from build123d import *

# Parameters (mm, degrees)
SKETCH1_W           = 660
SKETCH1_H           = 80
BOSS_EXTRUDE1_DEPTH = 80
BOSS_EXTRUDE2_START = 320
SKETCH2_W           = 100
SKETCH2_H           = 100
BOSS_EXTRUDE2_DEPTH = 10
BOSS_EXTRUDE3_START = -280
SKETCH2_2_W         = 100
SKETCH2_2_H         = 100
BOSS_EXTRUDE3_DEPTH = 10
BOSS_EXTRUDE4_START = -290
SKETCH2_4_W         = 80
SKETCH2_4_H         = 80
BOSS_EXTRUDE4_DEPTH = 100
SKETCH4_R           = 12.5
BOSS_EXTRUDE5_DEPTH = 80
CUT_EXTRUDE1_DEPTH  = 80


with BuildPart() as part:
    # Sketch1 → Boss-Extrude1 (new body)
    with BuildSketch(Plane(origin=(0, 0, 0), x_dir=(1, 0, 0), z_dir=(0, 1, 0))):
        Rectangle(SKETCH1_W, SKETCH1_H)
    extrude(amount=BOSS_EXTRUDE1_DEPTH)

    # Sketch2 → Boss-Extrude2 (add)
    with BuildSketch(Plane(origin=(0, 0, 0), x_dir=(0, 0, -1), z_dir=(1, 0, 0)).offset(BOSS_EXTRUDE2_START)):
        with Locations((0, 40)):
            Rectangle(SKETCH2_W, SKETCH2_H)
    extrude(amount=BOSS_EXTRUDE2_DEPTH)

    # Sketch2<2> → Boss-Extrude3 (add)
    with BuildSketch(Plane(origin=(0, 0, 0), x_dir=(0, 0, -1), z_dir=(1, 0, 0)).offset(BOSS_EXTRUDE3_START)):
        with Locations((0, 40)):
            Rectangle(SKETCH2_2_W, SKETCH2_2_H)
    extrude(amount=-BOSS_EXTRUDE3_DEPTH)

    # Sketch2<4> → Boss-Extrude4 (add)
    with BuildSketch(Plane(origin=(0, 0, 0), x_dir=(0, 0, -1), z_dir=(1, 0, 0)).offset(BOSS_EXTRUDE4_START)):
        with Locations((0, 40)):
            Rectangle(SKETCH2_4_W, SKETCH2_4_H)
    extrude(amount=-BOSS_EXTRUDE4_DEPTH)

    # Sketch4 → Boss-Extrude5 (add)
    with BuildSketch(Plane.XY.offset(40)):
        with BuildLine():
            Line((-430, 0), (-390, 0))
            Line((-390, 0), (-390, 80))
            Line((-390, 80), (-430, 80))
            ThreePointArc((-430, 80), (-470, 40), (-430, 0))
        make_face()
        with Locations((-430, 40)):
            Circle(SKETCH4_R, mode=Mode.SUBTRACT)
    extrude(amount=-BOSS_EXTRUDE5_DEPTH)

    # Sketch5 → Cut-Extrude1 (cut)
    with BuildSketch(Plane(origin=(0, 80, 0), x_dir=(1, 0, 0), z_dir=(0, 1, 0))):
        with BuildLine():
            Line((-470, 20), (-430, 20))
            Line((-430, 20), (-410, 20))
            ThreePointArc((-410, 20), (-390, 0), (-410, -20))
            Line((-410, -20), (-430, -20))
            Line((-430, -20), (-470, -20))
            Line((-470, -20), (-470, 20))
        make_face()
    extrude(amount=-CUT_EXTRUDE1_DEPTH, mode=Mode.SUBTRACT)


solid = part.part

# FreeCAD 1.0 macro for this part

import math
import FreeCAD as App
import Part
import Sketcher
Q = App.Units.Quantity


def add_polygon(sketch, points):
    """Adds a closed chain of lines whose ends are joined by coincident constraints."""
    first, n = sketch.GeometryCount, len(points)
    for a, b in zip(points, points[1:] + points[:1]):
        sketch.addGeometry(Part.LineSegment(App.Vector(*a, 0), App.Vector(*b, 0)), False)
    for i in range(n):
        sketch.addConstraint(Sketcher.Constraint("Coincident", first + i, 2, first + (i + 1) % n, 1))

doc = App.newDocument("Part")
body = doc.addObject("PartDesign::Body", "Body")

sketch1 = body.newObject("Sketcher::SketchObject", "Sketch")
sketch1.AttachmentSupport = (doc.getObject("XZ_Plane"), [""])
sketch1.MapMode = "FlatFace"
add_polygon(sketch1, [(-330, -40), (-330, 40), (330, 40), (330, -40)])
sketch1.addConstraint([
    Sketcher.Constraint("Vertical", 0),
    Sketcher.Constraint("Horizontal", 1),
    Sketcher.Constraint("Vertical", 2),
    Sketcher.Constraint("Horizontal", 3),
    Sketcher.Constraint("Symmetric", 0, 2, 2, 2, -1, 1),
    Sketcher.Constraint("DistanceX", 1, 1, 1, 2, Q("660 mm")),
    Sketcher.Constraint("DistanceY", 0, 1, 0, 2, Q("80 mm")),
])
pad1 = body.newObject("PartDesign::Pad", "Pad")
pad1.Profile = sketch1
pad1.Length = 80
pad1.Reversed = True

sketch2 = body.newObject("Sketcher::SketchObject", "Sketch001")
sketch2.AttachmentSupport = (doc.getObject("YZ_Plane"), [""])
sketch2.MapMode = "FlatFace"
sketch2.AttachmentOffset = App.Placement(App.Vector(0, 0, 320), App.Rotation())
add_polygon(sketch2, [(90, 50), (-10, 50), (-10, -50), (90, -50)])
sketch2.addConstraint([
    Sketcher.Constraint("Horizontal", 0),
    Sketcher.Constraint("Vertical", 1),
    Sketcher.Constraint("Horizontal", 2),
    Sketcher.Constraint("Vertical", 3),
    Sketcher.Constraint("Equal", 2, 1),
    Sketcher.Constraint("DistanceX", 0, 2, 0, 1, Q("100 mm")),
    Sketcher.Constraint("DistanceX", 0, 2, -1, 1, Q("10 mm")),
    Sketcher.Constraint("DistanceY", -1, 1, 0, 2, Q("50 mm")),
])
pad2 = body.newObject("PartDesign::Pad", "Pad001")
pad2.Profile = sketch2
pad2.Length = 10

sketch3 = body.newObject("Sketcher::SketchObject", "Sketch002")
sketch3.AttachmentSupport = (doc.getObject("YZ_Plane"), [""])
sketch3.MapMode = "FlatFace"
sketch3.AttachmentOffset = App.Placement(App.Vector(0, 0, -280), App.Rotation())
add_polygon(sketch3, [(90, 50), (-10, 50), (-10, -50), (90, -50)])
sketch3.addConstraint([
    Sketcher.Constraint("Horizontal", 0),
    Sketcher.Constraint("Vertical", 1),
    Sketcher.Constraint("Horizontal", 2),
    Sketcher.Constraint("Vertical", 3),
    Sketcher.Constraint("Equal", 2, 1),
    Sketcher.Constraint("DistanceX", 0, 2, 0, 1, Q("100 mm")),
    Sketcher.Constraint("DistanceX", 0, 2, -1, 1, Q("10 mm")),
    Sketcher.Constraint("DistanceY", -1, 1, 0, 2, Q("50 mm")),
])
pad3 = body.newObject("PartDesign::Pad", "Pad002")
pad3.Profile = sketch3
pad3.Length = 10
pad3.Reversed = True

sketch4 = body.newObject("Sketcher::SketchObject", "Sketch003")
sketch4.AttachmentSupport = (doc.getObject("YZ_Plane"), [""])
sketch4.MapMode = "FlatFace"
sketch4.AttachmentOffset = App.Placement(App.Vector(0, 0, -290), App.Rotation())
add_polygon(sketch4, [(80, 40), (0, 40), (0, -40), (80, -40)])
sketch4.addConstraint([
    Sketcher.Constraint("Horizontal", 0),
    Sketcher.Constraint("Vertical", 1),
    Sketcher.Constraint("Horizontal", 2),
    Sketcher.Constraint("Vertical", 3),
    Sketcher.Constraint("Symmetric", 0, 2, 1, 2, -1, 1),
    Sketcher.Constraint("Equal", 2, 1),
    Sketcher.Constraint("DistanceX", 0, 2, 0, 1, Q("80 mm")),
])
pad4 = body.newObject("PartDesign::Pad", "Pad003")
pad4.Profile = sketch4
pad4.Length = 100
pad4.Reversed = True

sketch5 = body.newObject("Sketcher::SketchObject", "Sketch004")
sketch5.AttachmentSupport = (doc.getObject("XY_Plane"), [""])
sketch5.MapMode = "FlatFace"
sketch5.AttachmentOffset = App.Placement(App.Vector(0, 0, 40), App.Rotation())
sketch5.addGeometry([
    Part.LineSegment(App.Vector(-430, 0, 0), App.Vector(-390, 0, 0)),
    Part.LineSegment(App.Vector(-390, 0, 0), App.Vector(-390, 80, 0)),
    Part.LineSegment(App.Vector(-390, 80, 0), App.Vector(-430, 80, 0)),
    Part.ArcOfCircle(Part.Circle(App.Vector(-430, 40, 0), App.Vector(0, 0, 1), 40), math.radians(90), math.radians(270)),
    Part.Circle(App.Vector(-430, 40, 0), App.Vector(0, 0, 1), 12),
], False)
sketch5.addConstraint([
    Sketcher.Constraint("Coincident", 0, 2, 1, 1),
    Sketcher.Constraint("Coincident", 1, 2, 2, 1),
    Sketcher.Constraint("Tangent", 2, 2, 3, 1),
    Sketcher.Constraint("Tangent", 3, 2, 0, 1),
    Sketcher.Constraint("Horizontal", 0),
    Sketcher.Constraint("Vertical", 1),
    Sketcher.Constraint("Horizontal", 2),
    Sketcher.Constraint("Coincident", 4, 3, 3, 3),
    Sketcher.Constraint("PointOnObject", 0, 2, -1),
    Sketcher.Constraint("Diameter", 4, Q("25 mm")),
    Sketcher.Constraint("Radius", 3, Q("40 mm")),
    Sketcher.Constraint("DistanceX", 0, 1, 0, 2, Q("40 mm")),
    Sketcher.Constraint("DistanceX", 3, 3, -1, 1, Q("430 mm")),
])
pad5 = body.newObject("PartDesign::Pad", "Pad004")
pad5.Profile = sketch5
pad5.Length = 80
pad5.Reversed = True

sketch6 = body.newObject("Sketcher::SketchObject", "Sketch005")
sketch6.AttachmentSupport = (doc.getObject("XZ_Plane"), [""])
sketch6.MapMode = "FlatFace"
sketch6.AttachmentOffset = App.Placement(App.Vector(0, 0, -80), App.Rotation())
sketch6.addGeometry([
    Part.LineSegment(App.Vector(-410, -20, 0), App.Vector(-470, -20, 0)),
    Part.LineSegment(App.Vector(-470, -20, 0), App.Vector(-470, 20, 0)),
    Part.LineSegment(App.Vector(-470, 20, 0), App.Vector(-410, 20, 0)),
    Part.ArcOfCircle(Part.Circle(App.Vector(-410, 0, 0), App.Vector(0, 0, 1), 20), math.radians(-90), math.radians(90)),
], False)
sketch6.addConstraint([
    Sketcher.Constraint("Coincident", 0, 2, 1, 1),
    Sketcher.Constraint("Coincident", 1, 2, 2, 1),
    Sketcher.Constraint("Tangent", 2, 2, 3, 2),
    Sketcher.Constraint("Tangent", 3, 1, 0, 1),
    Sketcher.Constraint("Horizontal", 0),
    Sketcher.Constraint("Vertical", 1),
    Sketcher.Constraint("Horizontal", 2),
    Sketcher.Constraint("PointOnObject", 3, 3, -1),
    Sketcher.Constraint("Radius", 3, Q("20 mm")),
    Sketcher.Constraint("DistanceX", 0, 2, 0, 1, Q("60 mm")),
    Sketcher.Constraint("DistanceX", 3, 3, -1, 1, Q("410 mm")),
])
pocket1 = body.newObject("PartDesign::Pocket", "Pocket")
pocket1.Profile = sketch6
pocket1.Length = 80
pocket1.Reversed = True

doc.recompute()
